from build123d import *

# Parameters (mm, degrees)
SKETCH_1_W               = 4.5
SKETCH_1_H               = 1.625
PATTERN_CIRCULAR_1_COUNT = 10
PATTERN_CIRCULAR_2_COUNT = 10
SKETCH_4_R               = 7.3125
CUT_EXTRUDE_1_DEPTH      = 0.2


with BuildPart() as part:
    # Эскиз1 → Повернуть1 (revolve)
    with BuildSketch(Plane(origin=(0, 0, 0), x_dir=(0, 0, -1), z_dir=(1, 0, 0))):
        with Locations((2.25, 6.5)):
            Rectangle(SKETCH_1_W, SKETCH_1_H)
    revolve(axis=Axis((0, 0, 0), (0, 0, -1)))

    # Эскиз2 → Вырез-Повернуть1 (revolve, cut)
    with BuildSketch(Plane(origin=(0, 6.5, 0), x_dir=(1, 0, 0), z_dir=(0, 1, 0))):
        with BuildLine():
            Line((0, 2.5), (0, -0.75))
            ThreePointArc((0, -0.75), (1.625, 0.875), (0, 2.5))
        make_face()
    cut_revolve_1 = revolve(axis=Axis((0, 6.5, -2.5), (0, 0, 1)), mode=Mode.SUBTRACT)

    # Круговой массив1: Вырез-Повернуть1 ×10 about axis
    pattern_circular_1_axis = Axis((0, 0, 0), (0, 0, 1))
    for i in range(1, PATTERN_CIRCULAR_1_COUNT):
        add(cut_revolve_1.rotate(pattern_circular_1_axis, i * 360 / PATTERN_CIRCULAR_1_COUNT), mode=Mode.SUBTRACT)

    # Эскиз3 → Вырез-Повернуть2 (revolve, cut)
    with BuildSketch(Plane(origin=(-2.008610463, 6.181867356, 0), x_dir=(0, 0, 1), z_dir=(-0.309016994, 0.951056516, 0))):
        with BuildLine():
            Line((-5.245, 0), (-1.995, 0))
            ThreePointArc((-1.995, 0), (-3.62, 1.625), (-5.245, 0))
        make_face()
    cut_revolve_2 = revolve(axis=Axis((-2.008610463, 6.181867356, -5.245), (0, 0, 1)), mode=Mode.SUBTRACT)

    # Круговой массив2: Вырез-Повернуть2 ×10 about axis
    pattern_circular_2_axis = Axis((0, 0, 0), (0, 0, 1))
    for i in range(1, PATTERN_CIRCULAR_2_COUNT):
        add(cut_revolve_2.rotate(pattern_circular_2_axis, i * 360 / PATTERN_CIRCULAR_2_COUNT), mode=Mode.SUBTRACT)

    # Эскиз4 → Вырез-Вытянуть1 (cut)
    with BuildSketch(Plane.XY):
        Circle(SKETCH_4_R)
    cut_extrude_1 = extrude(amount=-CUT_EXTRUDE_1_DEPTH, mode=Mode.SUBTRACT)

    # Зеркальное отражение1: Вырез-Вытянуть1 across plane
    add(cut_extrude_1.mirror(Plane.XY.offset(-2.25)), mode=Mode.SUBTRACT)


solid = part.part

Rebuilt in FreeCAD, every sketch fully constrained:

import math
import FreeCAD as App
import Part
import Sketcher

V = App.Vector


def add_polygon(sketch, points):
    """Adds a closed chain of lines whose ends are joined by coincident constraints."""
    first, n = sketch.GeometryCount, len(points)
    for a, b in zip(points, points[1:] + points[:1]):
        sketch.addGeometry(Part.LineSegment(App.Vector(*a, 0), App.Vector(*b, 0)), False)
    for i in range(n):
        sketch.addConstraint(Sketcher.Constraint("Coincident", first + i, 2, first + (i + 1) % n, 1))

doc = App.newDocument("Part")
body = doc.addObject("PartDesign::Body", "Body")

# Sketch on YZ plane
sketch1 = body.newObject("Sketcher::SketchObject", "Sketch")
sketch1.AttachmentSupport = (doc.getObject("YZ_Plane"), [""])
sketch1.MapMode = "FlatFace"
add_polygon(sketch1, [(7.3125, 0), (5.6875, 0), (5.6875, -4.5), (7.3125, -4.5)])  # lines 0-3
sketch1.addConstraint([
    Sketcher.Constraint("Horizontal", 0),
    Sketcher.Constraint("Vertical", 1),
    Sketcher.Constraint("Horizontal", 2),
    Sketcher.Constraint("Vertical", 3),
    Sketcher.Constraint("PointOnObject", 0, 2, -1),
    Sketcher.Constraint("DistanceY", 1, 2, 1, 1, 4.5),
    Sketcher.Constraint("DistanceX", 0, 2, 0, 1, 1.625),
    Sketcher.Constraint("DistanceX", -1, 1, 0, 2, 5.6875),
])
revolution = body.newObject("PartDesign::Revolution", "Revolution")
revolution.Profile = sketch1
revolution.ReferenceAxis = (sketch1, ["V_Axis"])
revolution.Angle = 360

# Sketch on XZ plane
sketch2 = body.newObject("Sketcher::SketchObject", "Sketch001")
sketch2.AttachmentSupport = (doc.getObject("XZ_Plane"), [""])
sketch2.MapMode = "FlatFace"
sketch2.AttachmentOffset = App.Placement(V(0, 0, -6.5), App.Rotation())
sketch2.addGeometry([
    Part.LineSegment(V(0, -2.5, 0), V(0, 0.75, 0)),
    Part.ArcOfCircle(Part.Circle(V(0, -0.875, 0), V(0, 0, 1), 1.625), math.radians(-90), math.radians(90)),
], False)
sketch2.addConstraint([
    Sketcher.Constraint("Coincident", 0, 1, 1, 1),
    Sketcher.Constraint("Coincident", 1, 2, 0, 2),
    Sketcher.Constraint("Vertical", 0),
    Sketcher.Constraint("PointOnObject", 1, 3, -2),
    Sketcher.Constraint("PointOnObject", 0, 1, -2),
    Sketcher.Constraint("Radius", 1, 1.625),
    Sketcher.Constraint("DistanceY", 0, 1, -1, 1, 2.5),
])
groove = body.newObject("PartDesign::Groove", "Groove")
groove.Profile = sketch2
groove.ReferenceAxis = (sketch2, ["V_Axis"])
groove.Angle = 360
doc.recompute()

polarpattern = body.newObject("PartDesign::PolarPattern", "PolarPattern")
polarpattern.Originals = [groove]
polarpattern.Axis = (doc.getObject("Z_Axis"), [""])
polarpattern.Angle = 360
polarpattern.Occurrences = 10
body.Tip = polarpattern

# Sketch on an angled plane
sketch3 = body.newObject("Sketcher::SketchObject", "Sketch002")
sketch3.Placement = App.Placement(V(-2.00861, 6.181867, 0), App.Rotation(V(0, 0, 1), V(0.951056516, 0.309016994, 0), V(-0.309016994, 0.951056516, 0), "ZXY"))
sketch3.addGeometry([
    Part.LineSegment(V(-5.245, 0, 0), V(-1.995, 0, 0)),
    Part.ArcOfCircle(Part.Circle(V(-3.62, 0, 0), V(0, 0, 1), 1.625), math.radians(0), math.radians(180)),
], False)
sketch3.addConstraint([
    Sketcher.Constraint("Coincident", 0, 1, 1, 2),
    Sketcher.Constraint("Coincident", 1, 1, 0, 2),
    Sketcher.Constraint("Horizontal", 0),
    Sketcher.Constraint("PointOnObject", 1, 3, -1),
    Sketcher.Constraint("PointOnObject", 0, 1, -1),
    Sketcher.Constraint("Radius", 1, 1.625),
    Sketcher.Constraint("DistanceX", 1, 3, -1, 1, 3.62),
])
groove2 = body.newObject("PartDesign::Groove", "Groove001")
groove2.Profile = sketch3
groove2.ReferenceAxis = (sketch3, ["H_Axis"])
groove2.Angle = 360
doc.recompute()

polarpattern2 = body.newObject("PartDesign::PolarPattern", "PolarPattern001")
polarpattern2.Originals = [groove2]
polarpattern2.Axis = (doc.getObject("Z_Axis"), [""])
polarpattern2.Angle = 360
polarpattern2.Occurrences = 10
body.Tip = polarpattern2

# Sketch on XY plane
sketch4 = body.newObject("Sketcher::SketchObject", "Sketch003")
sketch4.AttachmentSupport = (doc.getObject("XY_Plane"), [""])
sketch4.MapMode = "FlatFace"
sketch4.addGeometry(Part.Circle(V(0, 0, 0), V(0, 0, 1), 7.3125), False)
sketch4.addConstraint([
    Sketcher.Constraint("Coincident", 0, 3, -1, 1),
    Sketcher.Constraint("Diameter", 0, 14.625),
])
pocket1 = body.newObject("PartDesign::Pocket", "Pocket")
pocket1.Profile = sketch4
pocket1.Length = 0.2
doc.recompute()

datumplane = body.newObject("PartDesign::Plane", "DatumPlane")
datumplane.AttachmentSupport = (doc.getObject("XY_Plane"), [""])
datumplane.MapMode = "FlatFace"
datumplane.AttachmentOffset = App.Placement(V(0, 0, -2.25), App.Rotation())
mirrored = body.newObject("PartDesign::Mirrored", "Mirrored")
mirrored.Originals = [pocket1]
mirrored.MirrorPlane = (datumplane, [""])
body.Tip = mirrored

doc.recompute()
